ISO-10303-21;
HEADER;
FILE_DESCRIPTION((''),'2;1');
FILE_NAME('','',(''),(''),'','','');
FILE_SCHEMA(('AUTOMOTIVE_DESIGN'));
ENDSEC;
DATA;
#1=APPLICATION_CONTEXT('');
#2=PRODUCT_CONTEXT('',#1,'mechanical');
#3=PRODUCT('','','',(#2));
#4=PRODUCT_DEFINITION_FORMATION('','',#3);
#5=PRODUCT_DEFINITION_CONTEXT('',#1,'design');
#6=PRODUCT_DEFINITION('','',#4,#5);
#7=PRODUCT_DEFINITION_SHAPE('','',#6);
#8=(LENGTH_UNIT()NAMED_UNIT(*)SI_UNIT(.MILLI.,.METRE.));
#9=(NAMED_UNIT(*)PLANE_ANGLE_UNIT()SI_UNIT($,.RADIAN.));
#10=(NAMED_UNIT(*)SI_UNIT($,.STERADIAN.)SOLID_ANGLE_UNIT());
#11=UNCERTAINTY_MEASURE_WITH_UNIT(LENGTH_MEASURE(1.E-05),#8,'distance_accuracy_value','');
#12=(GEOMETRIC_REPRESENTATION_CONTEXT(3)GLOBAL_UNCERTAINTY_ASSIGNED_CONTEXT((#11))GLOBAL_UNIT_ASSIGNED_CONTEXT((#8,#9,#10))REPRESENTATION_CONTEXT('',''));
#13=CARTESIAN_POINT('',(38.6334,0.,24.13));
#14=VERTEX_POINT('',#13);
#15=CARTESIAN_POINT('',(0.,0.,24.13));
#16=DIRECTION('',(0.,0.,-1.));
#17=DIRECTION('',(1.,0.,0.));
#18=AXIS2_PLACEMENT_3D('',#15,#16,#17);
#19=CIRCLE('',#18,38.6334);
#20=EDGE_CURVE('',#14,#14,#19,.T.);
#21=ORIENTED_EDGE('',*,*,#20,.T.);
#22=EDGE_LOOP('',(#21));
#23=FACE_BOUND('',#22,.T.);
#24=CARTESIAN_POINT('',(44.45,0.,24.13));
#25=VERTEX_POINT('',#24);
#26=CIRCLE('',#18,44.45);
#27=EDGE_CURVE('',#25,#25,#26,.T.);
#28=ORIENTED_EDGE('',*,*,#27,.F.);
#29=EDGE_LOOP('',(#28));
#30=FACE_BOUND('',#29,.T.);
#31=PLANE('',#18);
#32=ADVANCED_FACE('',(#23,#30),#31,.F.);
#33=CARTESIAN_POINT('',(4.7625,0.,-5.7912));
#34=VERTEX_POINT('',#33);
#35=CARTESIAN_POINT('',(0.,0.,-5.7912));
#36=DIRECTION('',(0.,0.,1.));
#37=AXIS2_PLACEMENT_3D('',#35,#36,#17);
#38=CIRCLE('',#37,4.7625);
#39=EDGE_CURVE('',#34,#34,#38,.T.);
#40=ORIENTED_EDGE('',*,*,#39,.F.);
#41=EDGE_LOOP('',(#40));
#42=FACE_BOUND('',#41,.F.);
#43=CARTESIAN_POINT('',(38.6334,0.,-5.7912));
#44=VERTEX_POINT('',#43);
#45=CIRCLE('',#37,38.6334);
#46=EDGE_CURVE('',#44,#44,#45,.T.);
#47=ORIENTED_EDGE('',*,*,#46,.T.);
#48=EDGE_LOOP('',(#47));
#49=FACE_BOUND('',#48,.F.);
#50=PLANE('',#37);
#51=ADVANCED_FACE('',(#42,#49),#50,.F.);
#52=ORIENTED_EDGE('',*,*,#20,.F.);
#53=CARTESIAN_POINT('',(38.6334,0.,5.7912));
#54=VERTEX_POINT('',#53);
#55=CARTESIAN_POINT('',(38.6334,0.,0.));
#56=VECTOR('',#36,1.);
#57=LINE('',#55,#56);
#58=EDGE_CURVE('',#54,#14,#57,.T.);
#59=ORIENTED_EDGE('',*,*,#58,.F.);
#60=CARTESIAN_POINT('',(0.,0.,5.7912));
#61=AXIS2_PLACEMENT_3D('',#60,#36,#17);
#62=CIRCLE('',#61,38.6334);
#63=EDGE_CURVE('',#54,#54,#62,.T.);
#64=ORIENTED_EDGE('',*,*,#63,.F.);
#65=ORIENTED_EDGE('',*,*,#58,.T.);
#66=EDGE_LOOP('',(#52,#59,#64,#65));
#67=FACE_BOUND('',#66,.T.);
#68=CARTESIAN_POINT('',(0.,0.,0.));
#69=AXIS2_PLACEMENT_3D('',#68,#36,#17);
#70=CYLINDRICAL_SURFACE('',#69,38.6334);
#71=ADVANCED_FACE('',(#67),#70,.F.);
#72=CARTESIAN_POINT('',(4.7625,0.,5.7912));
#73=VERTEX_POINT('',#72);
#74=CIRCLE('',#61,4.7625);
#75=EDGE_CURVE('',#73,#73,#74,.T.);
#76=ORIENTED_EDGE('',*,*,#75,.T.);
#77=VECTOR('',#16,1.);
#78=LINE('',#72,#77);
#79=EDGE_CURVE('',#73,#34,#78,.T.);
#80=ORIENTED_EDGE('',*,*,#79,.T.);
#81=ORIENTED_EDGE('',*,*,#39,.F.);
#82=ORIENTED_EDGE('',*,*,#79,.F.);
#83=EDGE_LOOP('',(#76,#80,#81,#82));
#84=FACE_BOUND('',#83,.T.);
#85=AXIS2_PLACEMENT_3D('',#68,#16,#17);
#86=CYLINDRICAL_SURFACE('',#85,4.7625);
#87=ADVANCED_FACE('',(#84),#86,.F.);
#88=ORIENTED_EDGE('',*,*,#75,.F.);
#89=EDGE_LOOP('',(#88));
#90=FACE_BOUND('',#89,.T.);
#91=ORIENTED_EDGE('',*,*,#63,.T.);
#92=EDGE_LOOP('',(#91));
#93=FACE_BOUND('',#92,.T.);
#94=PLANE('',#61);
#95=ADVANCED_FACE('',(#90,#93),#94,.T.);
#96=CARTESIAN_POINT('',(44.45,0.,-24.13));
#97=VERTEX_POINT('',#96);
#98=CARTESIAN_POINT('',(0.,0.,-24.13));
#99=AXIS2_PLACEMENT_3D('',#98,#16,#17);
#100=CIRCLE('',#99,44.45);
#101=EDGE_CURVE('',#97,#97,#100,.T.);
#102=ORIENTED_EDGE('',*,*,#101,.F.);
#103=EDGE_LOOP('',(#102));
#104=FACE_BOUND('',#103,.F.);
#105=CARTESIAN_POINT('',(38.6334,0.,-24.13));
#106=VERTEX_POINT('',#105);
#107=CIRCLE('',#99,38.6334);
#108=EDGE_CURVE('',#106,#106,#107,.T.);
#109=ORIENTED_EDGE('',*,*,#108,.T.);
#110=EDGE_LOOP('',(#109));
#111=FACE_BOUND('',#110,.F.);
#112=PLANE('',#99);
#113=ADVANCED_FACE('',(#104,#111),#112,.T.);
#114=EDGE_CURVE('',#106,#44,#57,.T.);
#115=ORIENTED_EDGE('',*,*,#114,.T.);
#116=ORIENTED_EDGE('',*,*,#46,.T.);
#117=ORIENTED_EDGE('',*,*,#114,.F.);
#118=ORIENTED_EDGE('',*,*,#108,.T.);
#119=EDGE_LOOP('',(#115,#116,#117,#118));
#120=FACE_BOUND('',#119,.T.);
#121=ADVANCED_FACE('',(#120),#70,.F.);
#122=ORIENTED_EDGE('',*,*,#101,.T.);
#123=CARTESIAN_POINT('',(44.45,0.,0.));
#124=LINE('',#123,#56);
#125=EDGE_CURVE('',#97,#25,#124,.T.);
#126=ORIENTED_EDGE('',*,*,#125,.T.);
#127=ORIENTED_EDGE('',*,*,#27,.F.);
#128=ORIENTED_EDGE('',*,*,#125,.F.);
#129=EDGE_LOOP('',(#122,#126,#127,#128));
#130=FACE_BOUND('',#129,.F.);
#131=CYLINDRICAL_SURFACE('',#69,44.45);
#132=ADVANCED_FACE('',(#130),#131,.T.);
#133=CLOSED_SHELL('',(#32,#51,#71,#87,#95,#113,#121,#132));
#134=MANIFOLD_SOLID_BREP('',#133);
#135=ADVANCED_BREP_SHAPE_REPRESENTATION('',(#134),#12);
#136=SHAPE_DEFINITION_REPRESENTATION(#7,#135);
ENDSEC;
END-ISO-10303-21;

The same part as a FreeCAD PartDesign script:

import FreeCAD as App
import Part
import Sketcher

V = App.Vector
Q = App.Units.Quantity

doc = App.newDocument("Part")
body = doc.addObject("PartDesign::Body", "Body")

# Sketch on XZ plane
sketch1 = body.newObject("Sketcher::SketchObject", "Sketch")
sketch1.AttachmentSupport = (doc.getObject("XZ_Plane"), [""])
sketch1.MapMode = "FlatFace"
sketch1.addGeometry([
    Part.LineSegment(V(39, 24, 0), V(39, -24, 0)),
    Part.LineSegment(V(39, -24, 0), V(44, -24, 0)),
    Part.LineSegment(V(44, -24, 0), V(44, 24, 0)),
    Part.LineSegment(V(44, 24, 0), V(39, 24, 0)),
], False)
sketch1.addConstraint([
    Sketcher.Constraint("Coincident", 0, 2, 1, 1),
    Sketcher.Constraint("Coincident", 1, 2, 2, 1),
    Sketcher.Constraint("Coincident", 2, 2, 3, 1),
    Sketcher.Constraint("Coincident", 3, 2, 0, 1),
    Sketcher.Constraint("Vertical", 0),
    Sketcher.Constraint("Horizontal", 1),
    Sketcher.Constraint("Vertical", 2),
    Sketcher.Constraint("Horizontal", 3),
    Sketcher.Constraint("DistanceY", 0, 2, 0, 1, Q("1.9 in")),
    Sketcher.Constraint("DistanceX", 1, 1, 1, 2, Q("0.229 in")),
    Sketcher.Constraint("DistanceY", 0, 2, -1, 1, Q("0.95 in")),
    Sketcher.Constraint("DistanceX", -1, 1, 1, 2, Q("1.75 in")),
])
revolution = body.newObject("PartDesign::Revolution", "Revolution")
revolution.Profile = sketch1
revolution.ReferenceAxis = (sketch1, ["V_Axis"])
revolution.Angle = 360

# Sketch on XY plane
sketch2 = body.newObject("Sketcher::SketchObject", "Sketch001")
sketch2.AttachmentSupport = (doc.getObject("XY_Plane"), [""])
sketch2.MapMode = "FlatFace"
sketch2.addGeometry([
    Part.Circle(V(0, 0, 0), V(0, 0, 1), 38.6),
    Part.Circle(V(0, 0, 0), V(0, 0, 1), 4.8),
], False)
sketch2.addConstraint([
    Sketcher.Constraint("Coincident", 0, 3, -1, 1),
    Sketcher.Constraint("Coincident", 1, 3, -1, 1),
    Sketcher.Constraint("Diameter", 0, Q("3.042 in")),
    Sketcher.Constraint("Diameter", 1, Q("0.375 in")),
])
pad1 = body.newObject("PartDesign::Pad", "Pad")
pad1.Profile = sketch2
pad1.Length = Q("0.456 in")
pad1.Midplane = True

doc.recompute()
